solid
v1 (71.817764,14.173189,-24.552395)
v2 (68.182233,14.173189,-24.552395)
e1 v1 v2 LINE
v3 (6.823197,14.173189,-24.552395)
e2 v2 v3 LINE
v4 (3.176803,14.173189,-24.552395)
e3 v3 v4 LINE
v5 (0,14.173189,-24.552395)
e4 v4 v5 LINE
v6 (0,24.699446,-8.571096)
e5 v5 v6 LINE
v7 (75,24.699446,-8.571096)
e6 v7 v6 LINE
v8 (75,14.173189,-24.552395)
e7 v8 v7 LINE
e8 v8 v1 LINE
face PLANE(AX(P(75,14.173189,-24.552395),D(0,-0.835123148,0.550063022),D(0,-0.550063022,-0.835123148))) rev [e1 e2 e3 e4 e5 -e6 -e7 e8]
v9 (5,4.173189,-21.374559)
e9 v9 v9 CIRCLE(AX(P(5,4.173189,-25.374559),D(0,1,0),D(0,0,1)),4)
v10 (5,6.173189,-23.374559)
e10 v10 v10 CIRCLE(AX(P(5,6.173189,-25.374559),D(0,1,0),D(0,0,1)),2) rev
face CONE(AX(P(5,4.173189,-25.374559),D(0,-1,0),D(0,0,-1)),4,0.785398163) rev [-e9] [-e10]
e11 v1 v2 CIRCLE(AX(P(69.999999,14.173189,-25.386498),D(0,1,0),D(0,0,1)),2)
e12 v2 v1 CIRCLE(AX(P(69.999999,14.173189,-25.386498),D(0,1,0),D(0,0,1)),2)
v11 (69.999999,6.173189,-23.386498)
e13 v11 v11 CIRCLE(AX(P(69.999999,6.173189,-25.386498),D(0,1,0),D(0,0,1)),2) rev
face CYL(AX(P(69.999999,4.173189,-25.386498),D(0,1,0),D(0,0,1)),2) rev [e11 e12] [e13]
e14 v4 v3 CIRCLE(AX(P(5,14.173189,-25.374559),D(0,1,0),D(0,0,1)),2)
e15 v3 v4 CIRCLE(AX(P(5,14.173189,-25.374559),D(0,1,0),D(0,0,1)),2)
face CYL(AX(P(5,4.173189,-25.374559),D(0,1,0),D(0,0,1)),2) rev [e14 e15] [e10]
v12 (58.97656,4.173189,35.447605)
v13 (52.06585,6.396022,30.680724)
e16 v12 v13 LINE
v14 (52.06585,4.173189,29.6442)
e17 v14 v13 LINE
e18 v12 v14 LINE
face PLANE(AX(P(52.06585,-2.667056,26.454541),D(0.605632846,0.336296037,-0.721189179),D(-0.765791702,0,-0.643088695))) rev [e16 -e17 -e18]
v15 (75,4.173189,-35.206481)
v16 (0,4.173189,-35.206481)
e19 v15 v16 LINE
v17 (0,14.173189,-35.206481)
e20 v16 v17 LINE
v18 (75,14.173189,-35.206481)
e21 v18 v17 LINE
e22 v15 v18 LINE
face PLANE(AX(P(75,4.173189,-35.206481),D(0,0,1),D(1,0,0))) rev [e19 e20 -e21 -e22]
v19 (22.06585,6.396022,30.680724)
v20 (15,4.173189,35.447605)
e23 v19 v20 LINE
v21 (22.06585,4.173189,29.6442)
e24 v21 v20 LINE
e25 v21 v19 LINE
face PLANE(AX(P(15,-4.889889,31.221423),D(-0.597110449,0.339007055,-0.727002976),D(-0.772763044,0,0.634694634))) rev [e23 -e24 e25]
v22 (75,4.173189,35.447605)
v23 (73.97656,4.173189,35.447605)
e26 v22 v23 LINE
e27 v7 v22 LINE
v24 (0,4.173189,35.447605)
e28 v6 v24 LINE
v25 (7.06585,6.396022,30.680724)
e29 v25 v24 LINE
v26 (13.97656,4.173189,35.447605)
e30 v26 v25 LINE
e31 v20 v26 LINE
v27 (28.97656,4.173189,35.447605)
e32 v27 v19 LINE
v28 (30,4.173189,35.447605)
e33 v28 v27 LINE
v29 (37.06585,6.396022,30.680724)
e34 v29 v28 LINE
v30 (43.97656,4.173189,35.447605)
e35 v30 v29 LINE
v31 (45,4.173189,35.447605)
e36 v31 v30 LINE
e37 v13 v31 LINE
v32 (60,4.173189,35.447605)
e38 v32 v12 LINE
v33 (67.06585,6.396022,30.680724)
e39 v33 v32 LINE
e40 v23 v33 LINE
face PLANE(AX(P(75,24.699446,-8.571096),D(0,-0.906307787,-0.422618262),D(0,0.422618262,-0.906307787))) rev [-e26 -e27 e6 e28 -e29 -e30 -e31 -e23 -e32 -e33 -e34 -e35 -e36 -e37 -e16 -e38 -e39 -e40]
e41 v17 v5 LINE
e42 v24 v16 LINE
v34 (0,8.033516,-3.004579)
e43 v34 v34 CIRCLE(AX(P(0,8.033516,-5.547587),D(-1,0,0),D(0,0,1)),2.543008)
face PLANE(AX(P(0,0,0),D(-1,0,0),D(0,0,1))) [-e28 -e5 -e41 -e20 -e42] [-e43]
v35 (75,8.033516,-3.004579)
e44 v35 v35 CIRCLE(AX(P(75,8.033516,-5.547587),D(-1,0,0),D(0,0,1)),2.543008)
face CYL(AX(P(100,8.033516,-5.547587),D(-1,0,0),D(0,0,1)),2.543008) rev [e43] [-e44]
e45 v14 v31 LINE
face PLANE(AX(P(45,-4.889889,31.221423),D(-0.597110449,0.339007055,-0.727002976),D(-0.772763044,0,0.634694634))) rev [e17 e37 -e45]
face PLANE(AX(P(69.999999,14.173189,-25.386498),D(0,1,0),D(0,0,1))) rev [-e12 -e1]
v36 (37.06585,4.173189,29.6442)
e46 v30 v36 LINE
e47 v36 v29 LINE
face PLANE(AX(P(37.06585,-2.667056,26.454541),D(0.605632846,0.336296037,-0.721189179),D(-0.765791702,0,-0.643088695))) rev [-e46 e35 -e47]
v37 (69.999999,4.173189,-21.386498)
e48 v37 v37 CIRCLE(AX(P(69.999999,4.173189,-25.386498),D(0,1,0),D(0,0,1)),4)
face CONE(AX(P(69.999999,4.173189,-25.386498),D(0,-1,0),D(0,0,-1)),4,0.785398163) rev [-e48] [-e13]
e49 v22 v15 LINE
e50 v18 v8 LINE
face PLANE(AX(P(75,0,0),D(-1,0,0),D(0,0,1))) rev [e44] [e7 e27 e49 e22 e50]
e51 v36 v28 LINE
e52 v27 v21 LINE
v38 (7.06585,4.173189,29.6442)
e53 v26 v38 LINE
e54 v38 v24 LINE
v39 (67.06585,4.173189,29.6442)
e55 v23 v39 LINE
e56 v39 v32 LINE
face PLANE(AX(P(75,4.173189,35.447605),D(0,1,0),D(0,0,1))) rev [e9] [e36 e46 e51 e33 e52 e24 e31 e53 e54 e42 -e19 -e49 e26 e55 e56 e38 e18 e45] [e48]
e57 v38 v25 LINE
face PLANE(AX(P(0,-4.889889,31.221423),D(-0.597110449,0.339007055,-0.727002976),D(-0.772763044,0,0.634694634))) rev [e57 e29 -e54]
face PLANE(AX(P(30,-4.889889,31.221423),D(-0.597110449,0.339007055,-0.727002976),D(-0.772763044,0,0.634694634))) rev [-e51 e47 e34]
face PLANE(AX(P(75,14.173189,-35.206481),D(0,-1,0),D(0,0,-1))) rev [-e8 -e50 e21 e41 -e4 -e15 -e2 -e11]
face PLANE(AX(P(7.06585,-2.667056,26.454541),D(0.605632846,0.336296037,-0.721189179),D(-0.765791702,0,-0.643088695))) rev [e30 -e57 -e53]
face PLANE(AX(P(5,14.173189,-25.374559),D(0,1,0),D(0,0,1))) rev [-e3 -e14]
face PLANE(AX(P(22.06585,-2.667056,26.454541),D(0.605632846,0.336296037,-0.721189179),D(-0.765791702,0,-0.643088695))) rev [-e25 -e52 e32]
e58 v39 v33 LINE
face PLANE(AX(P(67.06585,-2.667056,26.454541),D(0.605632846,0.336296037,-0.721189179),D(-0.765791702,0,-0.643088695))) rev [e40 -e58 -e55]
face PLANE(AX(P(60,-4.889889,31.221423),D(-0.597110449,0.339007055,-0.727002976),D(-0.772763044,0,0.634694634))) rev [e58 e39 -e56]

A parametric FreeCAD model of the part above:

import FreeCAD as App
import Part
import Sketcher

V = App.Vector
Q = App.Units.Quantity


def edges_at(feature, points):
    """Names of the edges that pass closest to the given points."""
    edges = feature.Shape.Edges
    near = lambda p: min(range(len(edges)), key=lambda i: edges[i].distToShape(Part.Vertex(*p))[0])
    return sorted({f"Edge{near(p) + 1}" for p in points})


def add_polygon(sketch, points):
    """Adds a closed chain of lines whose ends are joined by coincident constraints."""
    first, n = sketch.GeometryCount, len(points)
    for a, b in zip(points, points[1:] + points[:1]):
        sketch.addGeometry(Part.LineSegment(App.Vector(*a, 0), App.Vector(*b, 0)), False)
    for i in range(n):
        sketch.addConstraint(Sketcher.Constraint("Coincident", first + i, 2, first + (i + 1) % n, 1))

doc = App.newDocument("Part")
body = doc.addObject("PartDesign::Body", "Body")

sketch1 = body.newObject("Sketcher::SketchObject", "Sketch")
sketch1.AttachmentSupport = (doc.getObject("YZ_Plane"), [""])
sketch1.MapMode = "FlatFace"
add_polygon(sketch1, [(4, 35), (4, -35), (14, -35), (14, -25), (25, -9)])
sketch1.addConstraint([
    Sketcher.Constraint("Vertical", 0),
    Sketcher.Constraint("Horizontal", 1),
    Sketcher.Constraint("Vertical", 2),
    Sketcher.Constraint("DistanceX", 1, 1, 1, 2, Q("10 mm")),
    Sketcher.Constraint("Angle", 4, Q("115 deg")),
    Sketcher.Constraint("DistanceY", 2, 2, 4, 2, Q("60 mm")),
    Sketcher.Constraint("DistanceY", 2, 2, 3, 2, Q("15.981299 mm")),
    Sketcher.Constraint("DistanceY", 0, 2, 0, 1, Q("70.654087 mm")),
    Sketcher.Constraint("DistanceX", -1, 1, 0, 2, Q("4.173189 mm")),
    Sketcher.Constraint("DistanceY", 0, 2, -1, 1, Q("35.206481 mm")),
])
pad1 = body.newObject("PartDesign::Pad", "Pad")
pad1.Profile = sketch1
pad1.Length = 75

sketch2 = body.newObject("Sketcher::SketchObject", "Sketch001")
sketch2.AttachmentSupport = (doc.getObject("XZ_Plane"), [""])
sketch2.MapMode = "FlatFace"
sketch2.AttachmentOffset = App.Placement(V(0, 0, -14.173189), App.Rotation())
sketch2.addGeometry([
    Part.Circle(V(5, -25.4, 0), V(0, 0, 1), 2),
    Part.Circle(V(70, -25.4, 0), V(0, 0, 1), 2),
], False)
sketch2.addConstraint([
    Sketcher.Constraint("Equal", 0, 1),
    Sketcher.Constraint("Diameter", 0, Q("4 mm")),
    Sketcher.Constraint("DistanceX", -1, 1, 0, 3, Q("5 mm")),
    Sketcher.Constraint("DistanceX", -1, 1, 1, 3, Q("69.999999 mm")),
    Sketcher.Constraint("DistanceY", 1, 3, -1, 1, Q("25.386498 mm")),
    Sketcher.Constraint("DistanceY", 0, 3, -1, 1, Q("25.374559 mm")),
])
pocket1 = body.newObject("PartDesign::Pocket", "Pocket")
pocket1.Profile = sketch2
pocket1.Length = 10
pocket1.Reversed = True

sketch3 = body.newObject("Sketcher::SketchObject", "Sketch002")
sketch3.Placement = App.Placement(V(0, 17.005052, 7.929586), App.Rotation(V(1, 0, 0), V(0, 0.422618262, -0.906307787), V(0, 0.906307787, 0.422618262), "ZXY"))
add_polygon(sketch3, [(7, -25), (0, -30), (14, -30)])
add_polygon(sketch3, [(29, -30), (22, -25), (15, -30)])
add_polygon(sketch3, [(44, -30), (37, -25), (30, -30)])
add_polygon(sketch3, [(59, -30), (52, -25), (45, -30)])
add_polygon(sketch3, [(74, -30), (67, -25), (60, -30)])
sketch3.addConstraint([
    Sketcher.Constraint("Horizontal", 1),
    Sketcher.Constraint("Horizontal", 5),
    Sketcher.Constraint("Horizontal", 8),
    Sketcher.Constraint("Horizontal", 11),
    Sketcher.Constraint("Horizontal", 14),
    Sketcher.Constraint("PointOnObject", 0, 2, -2),
    Sketcher.Constraint("Parallel", 2, 3),
    Sketcher.Constraint("Parallel", 0, 4),
    Sketcher.Constraint("Parallel", 3, 6),
    Sketcher.Constraint("Parallel", 4, 7),
    Sketcher.Constraint("Parallel", 6, 9),
    Sketcher.Constraint("Parallel", 7, 10),
    Sketcher.Constraint("Parallel", 9, 12),
    Sketcher.Constraint("Parallel", 10, 13),
    Sketcher.Constraint("Horizontal", 2, 2, 3, 2),
    Sketcher.Constraint("Horizontal", 1, 2, 4, 2),
    Sketcher.Constraint("Horizontal", 3, 2, 6, 2),
    Sketcher.Constraint("Horizontal", 5, 2, 7, 2),
    Sketcher.Constraint("Horizontal", 6, 2, 9, 2),
    Sketcher.Constraint("Horizontal", 8, 2, 10, 2),
    Sketcher.Constraint("Horizontal", 9, 2, 12, 2),
    Sketcher.Constraint("Horizontal", 11, 2, 13, 2),
    Sketcher.Constraint("DistanceX", -1, 1, 4, 2, Q("15 mm")),
    Sketcher.Constraint("DistanceX", -1, 1, 7, 2, Q("30 mm")),
    Sketcher.Constraint("DistanceX", -1, 1, 10, 2, Q("45 mm")),
    Sketcher.Constraint("DistanceX", -1, 1, 13, 2, Q("60 mm")),
    Sketcher.Constraint("DistanceX", 1, 1, 1, 2, Q("13.97656 mm")),
    Sketcher.Constraint("Distance", 0, Q("8.80854 mm")),
    Sketcher.Constraint("DistanceX", -1, 1, 2, 2, Q("7.06585 mm")),
    Sketcher.Constraint("DistanceY", 0, 2, -1, 1, Q("30.362775 mm")),
])
pocket2 = body.newObject("PartDesign::Pocket", "Pocket001")
pocket2.Profile = sketch3
pocket2.Length = 10

sketch4 = body.newObject("Sketcher::SketchObject", "Sketch003")
sketch4.AttachmentSupport = (doc.getObject("YZ_Plane"), [""])
sketch4.MapMode = "FlatFace"
sketch4.addGeometry(Part.Circle(V(8, -5.5, 0), V(0, 0, 1), 2.5), False)
sketch4.addConstraint([
    Sketcher.Constraint("Diameter", 0, Q("5.086017 mm")),
    Sketcher.Constraint("DistanceX", -1, 1, 0, 3, Q("8.033516 mm")),
    Sketcher.Constraint("DistanceY", 0, 3, -1, 1, Q("5.547587 mm")),
])
pocket3 = body.newObject("PartDesign::Pocket", "Pocket002")
pocket3.Profile = sketch4
pocket3.Length = 100
pocket3.Reversed = True
doc.recompute()

chamfer = body.newObject("PartDesign::Chamfer", "Chamfer")
chamfer.Base = (pocket3, edges_at(pocket3, [(5, 4.173, -27.375), (70, 4.173, -27.386)]))
chamfer.Size = 2

doc.recompute()
